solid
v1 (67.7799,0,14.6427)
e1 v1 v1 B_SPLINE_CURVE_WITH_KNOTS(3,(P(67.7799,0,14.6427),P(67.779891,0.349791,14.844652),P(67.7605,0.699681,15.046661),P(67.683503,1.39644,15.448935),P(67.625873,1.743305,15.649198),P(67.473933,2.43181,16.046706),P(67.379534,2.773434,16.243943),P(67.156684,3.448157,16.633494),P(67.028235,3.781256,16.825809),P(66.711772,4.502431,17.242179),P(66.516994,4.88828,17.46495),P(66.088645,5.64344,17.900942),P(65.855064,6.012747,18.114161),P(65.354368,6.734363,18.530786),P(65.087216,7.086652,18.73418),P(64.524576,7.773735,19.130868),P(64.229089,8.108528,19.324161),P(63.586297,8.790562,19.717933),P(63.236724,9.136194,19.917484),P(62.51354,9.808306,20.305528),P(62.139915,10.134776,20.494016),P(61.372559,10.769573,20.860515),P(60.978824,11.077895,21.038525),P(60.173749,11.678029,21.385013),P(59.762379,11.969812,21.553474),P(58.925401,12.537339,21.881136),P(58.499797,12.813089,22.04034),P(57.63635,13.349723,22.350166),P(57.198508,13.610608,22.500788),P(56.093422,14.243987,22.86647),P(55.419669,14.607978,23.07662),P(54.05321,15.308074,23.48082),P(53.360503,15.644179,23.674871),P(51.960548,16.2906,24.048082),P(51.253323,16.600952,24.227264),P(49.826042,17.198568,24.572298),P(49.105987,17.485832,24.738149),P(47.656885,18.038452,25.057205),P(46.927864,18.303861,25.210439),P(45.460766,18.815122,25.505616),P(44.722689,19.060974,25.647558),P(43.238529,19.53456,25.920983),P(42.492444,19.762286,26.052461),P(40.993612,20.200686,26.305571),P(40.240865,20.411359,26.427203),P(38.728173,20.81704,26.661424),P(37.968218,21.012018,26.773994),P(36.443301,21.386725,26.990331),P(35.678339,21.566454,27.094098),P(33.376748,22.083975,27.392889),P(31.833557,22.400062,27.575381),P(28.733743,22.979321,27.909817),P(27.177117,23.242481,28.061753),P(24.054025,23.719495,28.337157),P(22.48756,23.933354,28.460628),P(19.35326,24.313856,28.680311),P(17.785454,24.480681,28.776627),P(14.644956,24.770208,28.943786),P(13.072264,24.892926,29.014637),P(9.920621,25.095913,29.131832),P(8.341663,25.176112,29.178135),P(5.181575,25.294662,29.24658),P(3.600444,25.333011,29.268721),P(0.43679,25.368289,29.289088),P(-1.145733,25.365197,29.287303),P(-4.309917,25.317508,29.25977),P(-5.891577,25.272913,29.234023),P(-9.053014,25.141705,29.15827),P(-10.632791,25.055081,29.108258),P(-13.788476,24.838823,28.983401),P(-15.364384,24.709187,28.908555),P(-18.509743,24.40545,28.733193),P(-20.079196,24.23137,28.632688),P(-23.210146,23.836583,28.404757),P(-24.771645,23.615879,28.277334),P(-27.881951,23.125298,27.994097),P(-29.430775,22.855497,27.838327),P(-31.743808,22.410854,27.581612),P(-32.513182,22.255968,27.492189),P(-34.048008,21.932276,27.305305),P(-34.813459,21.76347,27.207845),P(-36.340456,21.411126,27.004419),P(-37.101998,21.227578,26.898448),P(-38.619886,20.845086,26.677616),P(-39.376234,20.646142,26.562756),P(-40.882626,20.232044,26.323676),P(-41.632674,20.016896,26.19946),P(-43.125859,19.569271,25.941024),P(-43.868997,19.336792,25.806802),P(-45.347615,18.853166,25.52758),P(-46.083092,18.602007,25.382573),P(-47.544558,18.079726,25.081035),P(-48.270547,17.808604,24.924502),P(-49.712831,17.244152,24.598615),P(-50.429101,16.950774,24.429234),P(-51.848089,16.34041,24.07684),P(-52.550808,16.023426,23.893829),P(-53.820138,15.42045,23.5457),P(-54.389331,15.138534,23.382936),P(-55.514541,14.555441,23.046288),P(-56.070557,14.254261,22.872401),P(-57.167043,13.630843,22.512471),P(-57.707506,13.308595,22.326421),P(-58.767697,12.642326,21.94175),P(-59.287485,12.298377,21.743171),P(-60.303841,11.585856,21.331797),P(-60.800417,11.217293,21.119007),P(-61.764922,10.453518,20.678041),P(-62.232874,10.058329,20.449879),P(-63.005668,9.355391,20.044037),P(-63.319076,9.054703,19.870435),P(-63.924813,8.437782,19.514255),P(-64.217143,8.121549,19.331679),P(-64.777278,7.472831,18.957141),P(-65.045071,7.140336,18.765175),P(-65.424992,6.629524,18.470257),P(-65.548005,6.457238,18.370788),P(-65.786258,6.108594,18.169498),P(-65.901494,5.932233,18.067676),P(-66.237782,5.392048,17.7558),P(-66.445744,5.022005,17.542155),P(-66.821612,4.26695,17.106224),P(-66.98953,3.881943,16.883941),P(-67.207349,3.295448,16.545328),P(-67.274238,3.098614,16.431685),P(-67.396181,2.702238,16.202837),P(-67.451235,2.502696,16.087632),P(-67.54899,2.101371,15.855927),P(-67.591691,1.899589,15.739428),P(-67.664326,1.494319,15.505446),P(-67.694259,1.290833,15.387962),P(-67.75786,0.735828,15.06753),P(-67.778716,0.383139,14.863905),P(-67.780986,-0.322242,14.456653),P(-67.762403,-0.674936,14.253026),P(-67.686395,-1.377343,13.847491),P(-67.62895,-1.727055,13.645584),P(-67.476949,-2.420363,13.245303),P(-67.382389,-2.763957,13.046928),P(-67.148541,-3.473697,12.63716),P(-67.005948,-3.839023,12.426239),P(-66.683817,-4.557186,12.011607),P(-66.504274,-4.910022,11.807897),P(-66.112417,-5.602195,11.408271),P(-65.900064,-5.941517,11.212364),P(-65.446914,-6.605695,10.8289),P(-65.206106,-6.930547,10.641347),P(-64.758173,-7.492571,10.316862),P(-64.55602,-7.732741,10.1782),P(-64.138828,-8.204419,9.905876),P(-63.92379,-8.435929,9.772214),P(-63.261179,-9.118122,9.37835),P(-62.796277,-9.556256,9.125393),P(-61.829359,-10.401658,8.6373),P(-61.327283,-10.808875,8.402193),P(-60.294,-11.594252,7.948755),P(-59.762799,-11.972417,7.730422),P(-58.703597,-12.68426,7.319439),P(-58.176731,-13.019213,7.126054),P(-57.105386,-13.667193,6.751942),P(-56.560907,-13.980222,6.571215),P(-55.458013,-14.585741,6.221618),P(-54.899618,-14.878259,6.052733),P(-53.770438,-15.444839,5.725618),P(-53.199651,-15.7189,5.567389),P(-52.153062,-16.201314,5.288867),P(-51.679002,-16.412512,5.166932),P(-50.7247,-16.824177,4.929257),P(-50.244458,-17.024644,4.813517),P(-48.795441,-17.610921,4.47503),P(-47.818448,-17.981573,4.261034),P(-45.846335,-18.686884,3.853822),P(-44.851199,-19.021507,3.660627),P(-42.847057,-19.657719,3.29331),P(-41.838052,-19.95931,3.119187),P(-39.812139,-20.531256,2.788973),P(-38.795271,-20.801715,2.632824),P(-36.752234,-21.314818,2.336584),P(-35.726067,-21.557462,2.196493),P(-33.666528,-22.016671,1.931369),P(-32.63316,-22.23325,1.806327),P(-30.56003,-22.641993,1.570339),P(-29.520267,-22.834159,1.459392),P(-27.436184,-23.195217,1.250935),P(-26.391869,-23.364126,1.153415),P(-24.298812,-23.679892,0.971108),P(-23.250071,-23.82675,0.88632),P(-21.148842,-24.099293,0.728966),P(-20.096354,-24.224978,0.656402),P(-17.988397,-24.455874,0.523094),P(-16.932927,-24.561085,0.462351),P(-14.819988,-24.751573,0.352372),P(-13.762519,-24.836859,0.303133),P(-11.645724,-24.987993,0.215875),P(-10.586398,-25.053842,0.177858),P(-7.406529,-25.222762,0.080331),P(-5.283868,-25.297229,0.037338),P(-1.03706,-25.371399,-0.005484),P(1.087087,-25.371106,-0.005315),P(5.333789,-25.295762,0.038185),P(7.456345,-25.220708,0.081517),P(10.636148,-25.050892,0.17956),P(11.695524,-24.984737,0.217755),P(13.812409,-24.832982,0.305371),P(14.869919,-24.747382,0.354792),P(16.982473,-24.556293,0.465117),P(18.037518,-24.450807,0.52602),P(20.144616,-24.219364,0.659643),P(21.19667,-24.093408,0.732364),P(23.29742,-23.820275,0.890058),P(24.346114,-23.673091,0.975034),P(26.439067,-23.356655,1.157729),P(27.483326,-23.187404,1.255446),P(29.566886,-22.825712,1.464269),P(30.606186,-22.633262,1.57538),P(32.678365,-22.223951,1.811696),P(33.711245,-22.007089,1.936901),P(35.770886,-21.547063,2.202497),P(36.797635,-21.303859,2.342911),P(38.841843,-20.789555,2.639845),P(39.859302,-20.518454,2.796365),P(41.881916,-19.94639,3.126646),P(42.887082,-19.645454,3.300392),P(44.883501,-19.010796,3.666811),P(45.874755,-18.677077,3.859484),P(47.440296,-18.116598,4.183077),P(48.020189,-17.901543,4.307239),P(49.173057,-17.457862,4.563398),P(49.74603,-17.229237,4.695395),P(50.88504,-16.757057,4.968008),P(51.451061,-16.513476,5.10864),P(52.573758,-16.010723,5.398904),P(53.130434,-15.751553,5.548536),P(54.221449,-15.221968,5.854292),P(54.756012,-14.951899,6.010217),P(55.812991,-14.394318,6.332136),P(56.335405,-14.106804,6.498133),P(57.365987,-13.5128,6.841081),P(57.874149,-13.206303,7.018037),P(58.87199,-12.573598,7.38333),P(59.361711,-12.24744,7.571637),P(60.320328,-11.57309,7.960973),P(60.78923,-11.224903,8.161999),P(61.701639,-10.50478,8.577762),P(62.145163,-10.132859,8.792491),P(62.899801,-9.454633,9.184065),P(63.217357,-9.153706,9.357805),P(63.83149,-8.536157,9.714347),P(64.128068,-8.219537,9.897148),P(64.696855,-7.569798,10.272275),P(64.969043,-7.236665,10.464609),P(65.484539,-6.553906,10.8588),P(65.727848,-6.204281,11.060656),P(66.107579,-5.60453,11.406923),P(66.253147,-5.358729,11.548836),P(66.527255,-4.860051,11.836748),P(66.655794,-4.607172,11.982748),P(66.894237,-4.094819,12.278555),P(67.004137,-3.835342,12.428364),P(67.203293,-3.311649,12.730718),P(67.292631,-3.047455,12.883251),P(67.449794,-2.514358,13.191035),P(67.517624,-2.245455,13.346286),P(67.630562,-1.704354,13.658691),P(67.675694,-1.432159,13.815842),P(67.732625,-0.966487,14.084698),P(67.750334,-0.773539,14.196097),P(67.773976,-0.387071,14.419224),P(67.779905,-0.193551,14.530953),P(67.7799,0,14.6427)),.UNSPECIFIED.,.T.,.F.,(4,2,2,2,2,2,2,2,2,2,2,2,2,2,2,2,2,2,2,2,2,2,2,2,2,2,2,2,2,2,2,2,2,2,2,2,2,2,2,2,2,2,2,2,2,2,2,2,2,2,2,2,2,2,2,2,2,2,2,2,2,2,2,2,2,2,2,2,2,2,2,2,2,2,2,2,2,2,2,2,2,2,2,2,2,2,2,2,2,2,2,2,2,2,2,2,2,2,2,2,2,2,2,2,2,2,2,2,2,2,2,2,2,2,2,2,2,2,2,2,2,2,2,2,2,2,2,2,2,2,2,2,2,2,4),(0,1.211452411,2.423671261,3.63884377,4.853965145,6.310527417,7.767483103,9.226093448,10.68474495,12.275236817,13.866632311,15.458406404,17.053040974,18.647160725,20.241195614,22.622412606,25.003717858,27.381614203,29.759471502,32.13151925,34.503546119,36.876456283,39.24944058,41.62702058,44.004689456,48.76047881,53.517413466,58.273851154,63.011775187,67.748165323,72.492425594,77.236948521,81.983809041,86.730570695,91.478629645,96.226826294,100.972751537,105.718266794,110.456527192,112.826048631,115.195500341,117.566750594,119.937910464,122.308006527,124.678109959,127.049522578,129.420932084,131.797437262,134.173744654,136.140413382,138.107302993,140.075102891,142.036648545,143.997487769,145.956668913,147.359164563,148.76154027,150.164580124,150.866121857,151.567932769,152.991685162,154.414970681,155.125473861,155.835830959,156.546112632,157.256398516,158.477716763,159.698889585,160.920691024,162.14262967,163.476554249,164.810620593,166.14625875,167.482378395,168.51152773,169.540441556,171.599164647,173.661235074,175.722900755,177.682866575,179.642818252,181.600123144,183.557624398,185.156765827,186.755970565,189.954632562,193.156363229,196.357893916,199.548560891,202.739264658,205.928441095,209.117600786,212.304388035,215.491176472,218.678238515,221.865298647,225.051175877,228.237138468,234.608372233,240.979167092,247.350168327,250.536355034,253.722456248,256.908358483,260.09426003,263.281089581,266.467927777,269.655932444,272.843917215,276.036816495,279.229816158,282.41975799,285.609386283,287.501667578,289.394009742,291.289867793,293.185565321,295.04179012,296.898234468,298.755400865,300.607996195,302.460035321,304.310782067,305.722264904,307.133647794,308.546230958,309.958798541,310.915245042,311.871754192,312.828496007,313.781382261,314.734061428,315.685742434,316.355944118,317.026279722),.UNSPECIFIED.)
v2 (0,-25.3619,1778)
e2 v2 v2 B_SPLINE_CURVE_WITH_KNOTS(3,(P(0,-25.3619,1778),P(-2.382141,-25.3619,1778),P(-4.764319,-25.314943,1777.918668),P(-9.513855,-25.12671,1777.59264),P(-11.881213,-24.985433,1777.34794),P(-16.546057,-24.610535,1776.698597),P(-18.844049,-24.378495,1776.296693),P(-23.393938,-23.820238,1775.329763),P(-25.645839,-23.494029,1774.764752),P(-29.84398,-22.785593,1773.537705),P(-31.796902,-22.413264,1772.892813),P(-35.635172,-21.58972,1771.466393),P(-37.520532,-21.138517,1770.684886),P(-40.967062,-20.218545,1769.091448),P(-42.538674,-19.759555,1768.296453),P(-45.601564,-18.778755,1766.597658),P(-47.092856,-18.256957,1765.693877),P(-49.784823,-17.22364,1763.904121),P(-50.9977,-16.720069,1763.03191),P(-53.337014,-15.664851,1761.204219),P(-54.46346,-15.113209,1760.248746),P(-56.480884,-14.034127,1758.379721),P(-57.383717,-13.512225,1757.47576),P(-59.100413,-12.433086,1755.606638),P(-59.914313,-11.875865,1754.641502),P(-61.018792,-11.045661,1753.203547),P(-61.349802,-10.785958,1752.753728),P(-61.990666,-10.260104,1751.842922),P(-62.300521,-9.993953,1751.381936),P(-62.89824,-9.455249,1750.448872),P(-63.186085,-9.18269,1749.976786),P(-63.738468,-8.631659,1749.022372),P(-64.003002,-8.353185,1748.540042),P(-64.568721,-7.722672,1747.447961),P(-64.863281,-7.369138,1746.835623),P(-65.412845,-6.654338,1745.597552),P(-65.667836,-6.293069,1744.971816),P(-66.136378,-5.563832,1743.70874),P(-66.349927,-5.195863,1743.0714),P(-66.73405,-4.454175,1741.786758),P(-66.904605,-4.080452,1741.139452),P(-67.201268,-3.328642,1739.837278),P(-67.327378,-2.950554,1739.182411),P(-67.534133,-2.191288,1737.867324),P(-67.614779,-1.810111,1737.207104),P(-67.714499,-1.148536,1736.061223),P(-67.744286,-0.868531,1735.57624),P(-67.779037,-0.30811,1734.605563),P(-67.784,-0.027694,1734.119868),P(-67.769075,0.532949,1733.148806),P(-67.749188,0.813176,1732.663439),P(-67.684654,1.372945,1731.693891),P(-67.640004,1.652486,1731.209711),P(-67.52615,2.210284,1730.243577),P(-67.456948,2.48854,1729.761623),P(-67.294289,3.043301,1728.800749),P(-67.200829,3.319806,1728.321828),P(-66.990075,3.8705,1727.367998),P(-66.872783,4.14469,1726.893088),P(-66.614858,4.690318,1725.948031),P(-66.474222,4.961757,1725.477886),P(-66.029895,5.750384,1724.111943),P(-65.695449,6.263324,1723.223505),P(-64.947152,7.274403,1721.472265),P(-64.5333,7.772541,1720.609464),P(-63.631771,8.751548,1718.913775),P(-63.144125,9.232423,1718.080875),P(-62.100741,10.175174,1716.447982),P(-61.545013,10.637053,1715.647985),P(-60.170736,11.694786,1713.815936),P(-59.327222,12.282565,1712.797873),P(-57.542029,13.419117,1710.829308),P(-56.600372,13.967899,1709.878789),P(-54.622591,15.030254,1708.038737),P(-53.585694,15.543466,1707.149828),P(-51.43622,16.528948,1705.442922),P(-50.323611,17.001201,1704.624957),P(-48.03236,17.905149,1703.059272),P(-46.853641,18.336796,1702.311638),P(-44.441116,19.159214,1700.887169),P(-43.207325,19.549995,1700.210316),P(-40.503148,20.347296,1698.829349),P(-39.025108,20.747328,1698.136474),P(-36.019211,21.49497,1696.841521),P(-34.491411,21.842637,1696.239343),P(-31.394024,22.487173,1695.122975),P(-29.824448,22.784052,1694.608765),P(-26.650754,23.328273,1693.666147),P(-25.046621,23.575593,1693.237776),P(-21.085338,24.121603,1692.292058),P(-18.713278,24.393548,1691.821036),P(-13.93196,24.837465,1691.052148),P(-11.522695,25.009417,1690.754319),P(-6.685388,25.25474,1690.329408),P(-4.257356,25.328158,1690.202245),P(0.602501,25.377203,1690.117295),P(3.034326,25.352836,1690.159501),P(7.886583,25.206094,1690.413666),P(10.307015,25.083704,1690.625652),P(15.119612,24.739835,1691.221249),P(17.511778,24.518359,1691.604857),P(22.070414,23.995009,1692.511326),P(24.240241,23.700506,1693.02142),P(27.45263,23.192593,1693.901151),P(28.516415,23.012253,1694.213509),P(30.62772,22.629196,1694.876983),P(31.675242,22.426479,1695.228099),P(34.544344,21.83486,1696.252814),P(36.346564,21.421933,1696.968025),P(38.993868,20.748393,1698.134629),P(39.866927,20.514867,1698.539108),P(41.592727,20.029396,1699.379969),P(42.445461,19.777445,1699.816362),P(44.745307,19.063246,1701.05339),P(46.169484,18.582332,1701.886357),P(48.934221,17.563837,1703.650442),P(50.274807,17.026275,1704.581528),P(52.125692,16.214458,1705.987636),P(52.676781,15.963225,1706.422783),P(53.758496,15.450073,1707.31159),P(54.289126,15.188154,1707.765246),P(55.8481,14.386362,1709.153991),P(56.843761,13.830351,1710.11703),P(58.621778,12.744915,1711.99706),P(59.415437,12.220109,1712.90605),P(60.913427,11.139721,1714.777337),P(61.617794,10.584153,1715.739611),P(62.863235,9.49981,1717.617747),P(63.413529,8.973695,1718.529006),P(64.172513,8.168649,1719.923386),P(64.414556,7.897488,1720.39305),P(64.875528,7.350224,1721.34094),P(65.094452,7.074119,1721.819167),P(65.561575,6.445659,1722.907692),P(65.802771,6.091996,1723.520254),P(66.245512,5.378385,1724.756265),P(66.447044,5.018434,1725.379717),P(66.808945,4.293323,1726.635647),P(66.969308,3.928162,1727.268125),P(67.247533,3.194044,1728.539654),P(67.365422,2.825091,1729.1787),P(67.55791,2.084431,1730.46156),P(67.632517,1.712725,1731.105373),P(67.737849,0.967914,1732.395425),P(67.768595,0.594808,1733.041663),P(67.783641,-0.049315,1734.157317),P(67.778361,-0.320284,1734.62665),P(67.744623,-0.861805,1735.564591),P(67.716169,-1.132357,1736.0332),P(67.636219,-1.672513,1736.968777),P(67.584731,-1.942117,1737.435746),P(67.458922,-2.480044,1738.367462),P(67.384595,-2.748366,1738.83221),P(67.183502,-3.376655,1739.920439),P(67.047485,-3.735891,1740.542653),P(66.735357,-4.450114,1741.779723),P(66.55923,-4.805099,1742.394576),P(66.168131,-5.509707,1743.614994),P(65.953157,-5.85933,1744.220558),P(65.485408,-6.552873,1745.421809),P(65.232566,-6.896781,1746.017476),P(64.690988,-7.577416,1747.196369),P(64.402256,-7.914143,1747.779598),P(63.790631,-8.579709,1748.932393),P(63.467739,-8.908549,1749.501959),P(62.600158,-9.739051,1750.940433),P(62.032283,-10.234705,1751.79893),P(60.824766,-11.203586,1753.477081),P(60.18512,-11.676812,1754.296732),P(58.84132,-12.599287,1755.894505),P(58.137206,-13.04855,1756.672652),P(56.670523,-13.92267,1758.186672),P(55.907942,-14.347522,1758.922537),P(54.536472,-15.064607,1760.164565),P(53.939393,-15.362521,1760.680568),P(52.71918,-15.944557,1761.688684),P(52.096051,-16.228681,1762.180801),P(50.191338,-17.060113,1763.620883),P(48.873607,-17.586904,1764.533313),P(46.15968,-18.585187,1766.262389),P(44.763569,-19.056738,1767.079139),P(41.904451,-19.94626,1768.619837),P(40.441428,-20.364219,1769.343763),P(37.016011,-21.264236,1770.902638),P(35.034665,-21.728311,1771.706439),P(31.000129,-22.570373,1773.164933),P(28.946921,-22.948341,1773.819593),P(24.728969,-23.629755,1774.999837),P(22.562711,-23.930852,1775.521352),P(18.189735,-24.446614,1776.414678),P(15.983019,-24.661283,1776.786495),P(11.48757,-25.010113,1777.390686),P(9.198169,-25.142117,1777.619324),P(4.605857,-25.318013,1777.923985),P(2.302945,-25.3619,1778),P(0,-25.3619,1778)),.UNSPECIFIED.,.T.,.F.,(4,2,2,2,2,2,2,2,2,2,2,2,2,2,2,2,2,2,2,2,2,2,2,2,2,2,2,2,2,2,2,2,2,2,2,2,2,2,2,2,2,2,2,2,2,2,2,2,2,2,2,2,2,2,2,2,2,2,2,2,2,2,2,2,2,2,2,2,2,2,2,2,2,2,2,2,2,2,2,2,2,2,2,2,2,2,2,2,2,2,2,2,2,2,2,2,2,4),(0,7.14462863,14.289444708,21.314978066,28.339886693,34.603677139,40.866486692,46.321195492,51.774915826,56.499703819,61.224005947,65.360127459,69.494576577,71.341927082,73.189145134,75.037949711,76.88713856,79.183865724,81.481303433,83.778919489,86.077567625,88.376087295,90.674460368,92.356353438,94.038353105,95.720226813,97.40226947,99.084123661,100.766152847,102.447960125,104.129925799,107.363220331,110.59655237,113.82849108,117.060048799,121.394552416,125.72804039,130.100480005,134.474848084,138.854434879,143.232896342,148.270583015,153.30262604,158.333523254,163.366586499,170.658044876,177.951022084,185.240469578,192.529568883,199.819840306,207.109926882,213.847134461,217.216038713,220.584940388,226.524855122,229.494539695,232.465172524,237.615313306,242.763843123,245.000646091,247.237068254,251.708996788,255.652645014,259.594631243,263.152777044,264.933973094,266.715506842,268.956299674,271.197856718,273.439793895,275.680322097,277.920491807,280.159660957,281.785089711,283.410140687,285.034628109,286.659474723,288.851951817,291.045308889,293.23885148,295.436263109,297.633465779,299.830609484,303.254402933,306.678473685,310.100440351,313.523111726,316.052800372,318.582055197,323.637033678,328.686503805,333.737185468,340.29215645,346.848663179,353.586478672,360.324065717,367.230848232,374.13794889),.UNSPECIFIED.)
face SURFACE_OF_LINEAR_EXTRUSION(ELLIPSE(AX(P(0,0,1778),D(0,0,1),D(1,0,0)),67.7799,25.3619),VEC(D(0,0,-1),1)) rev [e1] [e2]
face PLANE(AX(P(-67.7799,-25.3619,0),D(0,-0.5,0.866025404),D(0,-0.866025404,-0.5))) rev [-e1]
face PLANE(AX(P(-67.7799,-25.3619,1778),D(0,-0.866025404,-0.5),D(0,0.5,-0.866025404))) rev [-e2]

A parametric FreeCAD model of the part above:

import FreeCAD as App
import Part
import Sketcher
Q = App.Units.Quantity

doc = App.newDocument("Part")
body = doc.addObject("PartDesign::Body", "Body")

# Sketch on XY plane
sketch1 = doc.addObject("Sketcher::SketchObject", "Sketch")
body.addObject(sketch1)
sketch1.AttachmentSupport = (doc.XY_Plane, [""])
sketch1.MapMode = "FlatFace"
sketch1.addGeometry(Part.Ellipse(App.Vector(67.7799, 0, 0), App.Vector(0, 25.3619, 0), App.Vector(0, 0, 0)), False)
sketch1.addConstraint(Sketcher.Constraint("Block", 0))
pad1 = doc.addObject("PartDesign::Pad", "Pad")
body.addObject(pad1)
pad1.Profile = sketch1
pad1.Length = Q("70 in")

# Sketch on YZ plane
sketch2 = doc.addObject("Sketcher::SketchObject", "Sketch001")
body.addObject(sketch2)
sketch2.AttachmentSupport = (doc.YZ_Plane, [""])
sketch2.MapMode = "FlatFace"
sketch2.addGeometry([
    Part.LineSegment(App.Vector(-25, 1778, 0), App.Vector(51, 1646, 0)),  # 0
    Part.LineSegment(App.Vector(51, 1646, 0), App.Vector(51, 2758, 0)),  # 1
    Part.LineSegment(App.Vector(51, 2758, 0), App.Vector(-25, 2758, 0)),  # 2
    Part.LineSegment(App.Vector(-25, 2758, 0), App.Vector(-25, 1778, 0)),  # 3
    Part.LineSegment(App.Vector(25, 29, 0), App.Vector(-25, 0, 0)),  # 4
    Part.LineSegment(App.Vector(-25, 0, 0), App.Vector(25, 0, 0)),  # 5
    Part.LineSegment(App.Vector(25, 0, 0), App.Vector(25, 29, 0)),  # 6
], False)
sketch2.addConstraint([
    Sketcher.Constraint("Coincident", 0, 2, 1, 1),
    Sketcher.Constraint("Coincident", 1, 2, 2, 1),
    Sketcher.Constraint("Coincident", 2, 2, 3, 1),
    Sketcher.Constraint("Coincident", 3, 2, 0, 1),
    Sketcher.Constraint("Coincident", 4, 2, 5, 1),
    Sketcher.Constraint("Coincident", 5, 2, 6, 1),
    Sketcher.Constraint("Coincident", 6, 2, 4, 1),
    Sketcher.Constraint("Vertical", 1),
    Sketcher.Constraint("Horizontal", 2),
    Sketcher.Constraint("Vertical", 3),
    Sketcher.Constraint("Horizontal", 5),
    Sketcher.Constraint("Vertical", 6),
    Sketcher.Constraint("Symmetric", 4, 2, 5, 2, -1, 1),
    Sketcher.Constraint("Perpendicular", 0, 4),
    Sketcher.Constraint("Vertical", 3, 2, 4, 2),
    Sketcher.Constraint("DistanceY", -1, 1, 3, 2, Q("70 in")),
    Sketcher.Constraint("Angle", 0, Q("-60 deg")),
    Sketcher.Constraint("DistanceX", 5, 1, 5, 2, Q("1.997 in")),
    Sketcher.Constraint("DistanceY", -1, 1, 0, 2, Q("64.8018999 in")),
    Sketcher.Constraint("DistanceY", 1, 1, 1, 2, Q("1112.306181 mm")),
])
pocket1 = doc.addObject("PartDesign::Pocket", "Pocket")
body.addObject(pocket1)
pocket1.Profile = sketch2
pocket1.Type = "ThroughAll"
pocket1.Midplane = True

doc.recompute()
